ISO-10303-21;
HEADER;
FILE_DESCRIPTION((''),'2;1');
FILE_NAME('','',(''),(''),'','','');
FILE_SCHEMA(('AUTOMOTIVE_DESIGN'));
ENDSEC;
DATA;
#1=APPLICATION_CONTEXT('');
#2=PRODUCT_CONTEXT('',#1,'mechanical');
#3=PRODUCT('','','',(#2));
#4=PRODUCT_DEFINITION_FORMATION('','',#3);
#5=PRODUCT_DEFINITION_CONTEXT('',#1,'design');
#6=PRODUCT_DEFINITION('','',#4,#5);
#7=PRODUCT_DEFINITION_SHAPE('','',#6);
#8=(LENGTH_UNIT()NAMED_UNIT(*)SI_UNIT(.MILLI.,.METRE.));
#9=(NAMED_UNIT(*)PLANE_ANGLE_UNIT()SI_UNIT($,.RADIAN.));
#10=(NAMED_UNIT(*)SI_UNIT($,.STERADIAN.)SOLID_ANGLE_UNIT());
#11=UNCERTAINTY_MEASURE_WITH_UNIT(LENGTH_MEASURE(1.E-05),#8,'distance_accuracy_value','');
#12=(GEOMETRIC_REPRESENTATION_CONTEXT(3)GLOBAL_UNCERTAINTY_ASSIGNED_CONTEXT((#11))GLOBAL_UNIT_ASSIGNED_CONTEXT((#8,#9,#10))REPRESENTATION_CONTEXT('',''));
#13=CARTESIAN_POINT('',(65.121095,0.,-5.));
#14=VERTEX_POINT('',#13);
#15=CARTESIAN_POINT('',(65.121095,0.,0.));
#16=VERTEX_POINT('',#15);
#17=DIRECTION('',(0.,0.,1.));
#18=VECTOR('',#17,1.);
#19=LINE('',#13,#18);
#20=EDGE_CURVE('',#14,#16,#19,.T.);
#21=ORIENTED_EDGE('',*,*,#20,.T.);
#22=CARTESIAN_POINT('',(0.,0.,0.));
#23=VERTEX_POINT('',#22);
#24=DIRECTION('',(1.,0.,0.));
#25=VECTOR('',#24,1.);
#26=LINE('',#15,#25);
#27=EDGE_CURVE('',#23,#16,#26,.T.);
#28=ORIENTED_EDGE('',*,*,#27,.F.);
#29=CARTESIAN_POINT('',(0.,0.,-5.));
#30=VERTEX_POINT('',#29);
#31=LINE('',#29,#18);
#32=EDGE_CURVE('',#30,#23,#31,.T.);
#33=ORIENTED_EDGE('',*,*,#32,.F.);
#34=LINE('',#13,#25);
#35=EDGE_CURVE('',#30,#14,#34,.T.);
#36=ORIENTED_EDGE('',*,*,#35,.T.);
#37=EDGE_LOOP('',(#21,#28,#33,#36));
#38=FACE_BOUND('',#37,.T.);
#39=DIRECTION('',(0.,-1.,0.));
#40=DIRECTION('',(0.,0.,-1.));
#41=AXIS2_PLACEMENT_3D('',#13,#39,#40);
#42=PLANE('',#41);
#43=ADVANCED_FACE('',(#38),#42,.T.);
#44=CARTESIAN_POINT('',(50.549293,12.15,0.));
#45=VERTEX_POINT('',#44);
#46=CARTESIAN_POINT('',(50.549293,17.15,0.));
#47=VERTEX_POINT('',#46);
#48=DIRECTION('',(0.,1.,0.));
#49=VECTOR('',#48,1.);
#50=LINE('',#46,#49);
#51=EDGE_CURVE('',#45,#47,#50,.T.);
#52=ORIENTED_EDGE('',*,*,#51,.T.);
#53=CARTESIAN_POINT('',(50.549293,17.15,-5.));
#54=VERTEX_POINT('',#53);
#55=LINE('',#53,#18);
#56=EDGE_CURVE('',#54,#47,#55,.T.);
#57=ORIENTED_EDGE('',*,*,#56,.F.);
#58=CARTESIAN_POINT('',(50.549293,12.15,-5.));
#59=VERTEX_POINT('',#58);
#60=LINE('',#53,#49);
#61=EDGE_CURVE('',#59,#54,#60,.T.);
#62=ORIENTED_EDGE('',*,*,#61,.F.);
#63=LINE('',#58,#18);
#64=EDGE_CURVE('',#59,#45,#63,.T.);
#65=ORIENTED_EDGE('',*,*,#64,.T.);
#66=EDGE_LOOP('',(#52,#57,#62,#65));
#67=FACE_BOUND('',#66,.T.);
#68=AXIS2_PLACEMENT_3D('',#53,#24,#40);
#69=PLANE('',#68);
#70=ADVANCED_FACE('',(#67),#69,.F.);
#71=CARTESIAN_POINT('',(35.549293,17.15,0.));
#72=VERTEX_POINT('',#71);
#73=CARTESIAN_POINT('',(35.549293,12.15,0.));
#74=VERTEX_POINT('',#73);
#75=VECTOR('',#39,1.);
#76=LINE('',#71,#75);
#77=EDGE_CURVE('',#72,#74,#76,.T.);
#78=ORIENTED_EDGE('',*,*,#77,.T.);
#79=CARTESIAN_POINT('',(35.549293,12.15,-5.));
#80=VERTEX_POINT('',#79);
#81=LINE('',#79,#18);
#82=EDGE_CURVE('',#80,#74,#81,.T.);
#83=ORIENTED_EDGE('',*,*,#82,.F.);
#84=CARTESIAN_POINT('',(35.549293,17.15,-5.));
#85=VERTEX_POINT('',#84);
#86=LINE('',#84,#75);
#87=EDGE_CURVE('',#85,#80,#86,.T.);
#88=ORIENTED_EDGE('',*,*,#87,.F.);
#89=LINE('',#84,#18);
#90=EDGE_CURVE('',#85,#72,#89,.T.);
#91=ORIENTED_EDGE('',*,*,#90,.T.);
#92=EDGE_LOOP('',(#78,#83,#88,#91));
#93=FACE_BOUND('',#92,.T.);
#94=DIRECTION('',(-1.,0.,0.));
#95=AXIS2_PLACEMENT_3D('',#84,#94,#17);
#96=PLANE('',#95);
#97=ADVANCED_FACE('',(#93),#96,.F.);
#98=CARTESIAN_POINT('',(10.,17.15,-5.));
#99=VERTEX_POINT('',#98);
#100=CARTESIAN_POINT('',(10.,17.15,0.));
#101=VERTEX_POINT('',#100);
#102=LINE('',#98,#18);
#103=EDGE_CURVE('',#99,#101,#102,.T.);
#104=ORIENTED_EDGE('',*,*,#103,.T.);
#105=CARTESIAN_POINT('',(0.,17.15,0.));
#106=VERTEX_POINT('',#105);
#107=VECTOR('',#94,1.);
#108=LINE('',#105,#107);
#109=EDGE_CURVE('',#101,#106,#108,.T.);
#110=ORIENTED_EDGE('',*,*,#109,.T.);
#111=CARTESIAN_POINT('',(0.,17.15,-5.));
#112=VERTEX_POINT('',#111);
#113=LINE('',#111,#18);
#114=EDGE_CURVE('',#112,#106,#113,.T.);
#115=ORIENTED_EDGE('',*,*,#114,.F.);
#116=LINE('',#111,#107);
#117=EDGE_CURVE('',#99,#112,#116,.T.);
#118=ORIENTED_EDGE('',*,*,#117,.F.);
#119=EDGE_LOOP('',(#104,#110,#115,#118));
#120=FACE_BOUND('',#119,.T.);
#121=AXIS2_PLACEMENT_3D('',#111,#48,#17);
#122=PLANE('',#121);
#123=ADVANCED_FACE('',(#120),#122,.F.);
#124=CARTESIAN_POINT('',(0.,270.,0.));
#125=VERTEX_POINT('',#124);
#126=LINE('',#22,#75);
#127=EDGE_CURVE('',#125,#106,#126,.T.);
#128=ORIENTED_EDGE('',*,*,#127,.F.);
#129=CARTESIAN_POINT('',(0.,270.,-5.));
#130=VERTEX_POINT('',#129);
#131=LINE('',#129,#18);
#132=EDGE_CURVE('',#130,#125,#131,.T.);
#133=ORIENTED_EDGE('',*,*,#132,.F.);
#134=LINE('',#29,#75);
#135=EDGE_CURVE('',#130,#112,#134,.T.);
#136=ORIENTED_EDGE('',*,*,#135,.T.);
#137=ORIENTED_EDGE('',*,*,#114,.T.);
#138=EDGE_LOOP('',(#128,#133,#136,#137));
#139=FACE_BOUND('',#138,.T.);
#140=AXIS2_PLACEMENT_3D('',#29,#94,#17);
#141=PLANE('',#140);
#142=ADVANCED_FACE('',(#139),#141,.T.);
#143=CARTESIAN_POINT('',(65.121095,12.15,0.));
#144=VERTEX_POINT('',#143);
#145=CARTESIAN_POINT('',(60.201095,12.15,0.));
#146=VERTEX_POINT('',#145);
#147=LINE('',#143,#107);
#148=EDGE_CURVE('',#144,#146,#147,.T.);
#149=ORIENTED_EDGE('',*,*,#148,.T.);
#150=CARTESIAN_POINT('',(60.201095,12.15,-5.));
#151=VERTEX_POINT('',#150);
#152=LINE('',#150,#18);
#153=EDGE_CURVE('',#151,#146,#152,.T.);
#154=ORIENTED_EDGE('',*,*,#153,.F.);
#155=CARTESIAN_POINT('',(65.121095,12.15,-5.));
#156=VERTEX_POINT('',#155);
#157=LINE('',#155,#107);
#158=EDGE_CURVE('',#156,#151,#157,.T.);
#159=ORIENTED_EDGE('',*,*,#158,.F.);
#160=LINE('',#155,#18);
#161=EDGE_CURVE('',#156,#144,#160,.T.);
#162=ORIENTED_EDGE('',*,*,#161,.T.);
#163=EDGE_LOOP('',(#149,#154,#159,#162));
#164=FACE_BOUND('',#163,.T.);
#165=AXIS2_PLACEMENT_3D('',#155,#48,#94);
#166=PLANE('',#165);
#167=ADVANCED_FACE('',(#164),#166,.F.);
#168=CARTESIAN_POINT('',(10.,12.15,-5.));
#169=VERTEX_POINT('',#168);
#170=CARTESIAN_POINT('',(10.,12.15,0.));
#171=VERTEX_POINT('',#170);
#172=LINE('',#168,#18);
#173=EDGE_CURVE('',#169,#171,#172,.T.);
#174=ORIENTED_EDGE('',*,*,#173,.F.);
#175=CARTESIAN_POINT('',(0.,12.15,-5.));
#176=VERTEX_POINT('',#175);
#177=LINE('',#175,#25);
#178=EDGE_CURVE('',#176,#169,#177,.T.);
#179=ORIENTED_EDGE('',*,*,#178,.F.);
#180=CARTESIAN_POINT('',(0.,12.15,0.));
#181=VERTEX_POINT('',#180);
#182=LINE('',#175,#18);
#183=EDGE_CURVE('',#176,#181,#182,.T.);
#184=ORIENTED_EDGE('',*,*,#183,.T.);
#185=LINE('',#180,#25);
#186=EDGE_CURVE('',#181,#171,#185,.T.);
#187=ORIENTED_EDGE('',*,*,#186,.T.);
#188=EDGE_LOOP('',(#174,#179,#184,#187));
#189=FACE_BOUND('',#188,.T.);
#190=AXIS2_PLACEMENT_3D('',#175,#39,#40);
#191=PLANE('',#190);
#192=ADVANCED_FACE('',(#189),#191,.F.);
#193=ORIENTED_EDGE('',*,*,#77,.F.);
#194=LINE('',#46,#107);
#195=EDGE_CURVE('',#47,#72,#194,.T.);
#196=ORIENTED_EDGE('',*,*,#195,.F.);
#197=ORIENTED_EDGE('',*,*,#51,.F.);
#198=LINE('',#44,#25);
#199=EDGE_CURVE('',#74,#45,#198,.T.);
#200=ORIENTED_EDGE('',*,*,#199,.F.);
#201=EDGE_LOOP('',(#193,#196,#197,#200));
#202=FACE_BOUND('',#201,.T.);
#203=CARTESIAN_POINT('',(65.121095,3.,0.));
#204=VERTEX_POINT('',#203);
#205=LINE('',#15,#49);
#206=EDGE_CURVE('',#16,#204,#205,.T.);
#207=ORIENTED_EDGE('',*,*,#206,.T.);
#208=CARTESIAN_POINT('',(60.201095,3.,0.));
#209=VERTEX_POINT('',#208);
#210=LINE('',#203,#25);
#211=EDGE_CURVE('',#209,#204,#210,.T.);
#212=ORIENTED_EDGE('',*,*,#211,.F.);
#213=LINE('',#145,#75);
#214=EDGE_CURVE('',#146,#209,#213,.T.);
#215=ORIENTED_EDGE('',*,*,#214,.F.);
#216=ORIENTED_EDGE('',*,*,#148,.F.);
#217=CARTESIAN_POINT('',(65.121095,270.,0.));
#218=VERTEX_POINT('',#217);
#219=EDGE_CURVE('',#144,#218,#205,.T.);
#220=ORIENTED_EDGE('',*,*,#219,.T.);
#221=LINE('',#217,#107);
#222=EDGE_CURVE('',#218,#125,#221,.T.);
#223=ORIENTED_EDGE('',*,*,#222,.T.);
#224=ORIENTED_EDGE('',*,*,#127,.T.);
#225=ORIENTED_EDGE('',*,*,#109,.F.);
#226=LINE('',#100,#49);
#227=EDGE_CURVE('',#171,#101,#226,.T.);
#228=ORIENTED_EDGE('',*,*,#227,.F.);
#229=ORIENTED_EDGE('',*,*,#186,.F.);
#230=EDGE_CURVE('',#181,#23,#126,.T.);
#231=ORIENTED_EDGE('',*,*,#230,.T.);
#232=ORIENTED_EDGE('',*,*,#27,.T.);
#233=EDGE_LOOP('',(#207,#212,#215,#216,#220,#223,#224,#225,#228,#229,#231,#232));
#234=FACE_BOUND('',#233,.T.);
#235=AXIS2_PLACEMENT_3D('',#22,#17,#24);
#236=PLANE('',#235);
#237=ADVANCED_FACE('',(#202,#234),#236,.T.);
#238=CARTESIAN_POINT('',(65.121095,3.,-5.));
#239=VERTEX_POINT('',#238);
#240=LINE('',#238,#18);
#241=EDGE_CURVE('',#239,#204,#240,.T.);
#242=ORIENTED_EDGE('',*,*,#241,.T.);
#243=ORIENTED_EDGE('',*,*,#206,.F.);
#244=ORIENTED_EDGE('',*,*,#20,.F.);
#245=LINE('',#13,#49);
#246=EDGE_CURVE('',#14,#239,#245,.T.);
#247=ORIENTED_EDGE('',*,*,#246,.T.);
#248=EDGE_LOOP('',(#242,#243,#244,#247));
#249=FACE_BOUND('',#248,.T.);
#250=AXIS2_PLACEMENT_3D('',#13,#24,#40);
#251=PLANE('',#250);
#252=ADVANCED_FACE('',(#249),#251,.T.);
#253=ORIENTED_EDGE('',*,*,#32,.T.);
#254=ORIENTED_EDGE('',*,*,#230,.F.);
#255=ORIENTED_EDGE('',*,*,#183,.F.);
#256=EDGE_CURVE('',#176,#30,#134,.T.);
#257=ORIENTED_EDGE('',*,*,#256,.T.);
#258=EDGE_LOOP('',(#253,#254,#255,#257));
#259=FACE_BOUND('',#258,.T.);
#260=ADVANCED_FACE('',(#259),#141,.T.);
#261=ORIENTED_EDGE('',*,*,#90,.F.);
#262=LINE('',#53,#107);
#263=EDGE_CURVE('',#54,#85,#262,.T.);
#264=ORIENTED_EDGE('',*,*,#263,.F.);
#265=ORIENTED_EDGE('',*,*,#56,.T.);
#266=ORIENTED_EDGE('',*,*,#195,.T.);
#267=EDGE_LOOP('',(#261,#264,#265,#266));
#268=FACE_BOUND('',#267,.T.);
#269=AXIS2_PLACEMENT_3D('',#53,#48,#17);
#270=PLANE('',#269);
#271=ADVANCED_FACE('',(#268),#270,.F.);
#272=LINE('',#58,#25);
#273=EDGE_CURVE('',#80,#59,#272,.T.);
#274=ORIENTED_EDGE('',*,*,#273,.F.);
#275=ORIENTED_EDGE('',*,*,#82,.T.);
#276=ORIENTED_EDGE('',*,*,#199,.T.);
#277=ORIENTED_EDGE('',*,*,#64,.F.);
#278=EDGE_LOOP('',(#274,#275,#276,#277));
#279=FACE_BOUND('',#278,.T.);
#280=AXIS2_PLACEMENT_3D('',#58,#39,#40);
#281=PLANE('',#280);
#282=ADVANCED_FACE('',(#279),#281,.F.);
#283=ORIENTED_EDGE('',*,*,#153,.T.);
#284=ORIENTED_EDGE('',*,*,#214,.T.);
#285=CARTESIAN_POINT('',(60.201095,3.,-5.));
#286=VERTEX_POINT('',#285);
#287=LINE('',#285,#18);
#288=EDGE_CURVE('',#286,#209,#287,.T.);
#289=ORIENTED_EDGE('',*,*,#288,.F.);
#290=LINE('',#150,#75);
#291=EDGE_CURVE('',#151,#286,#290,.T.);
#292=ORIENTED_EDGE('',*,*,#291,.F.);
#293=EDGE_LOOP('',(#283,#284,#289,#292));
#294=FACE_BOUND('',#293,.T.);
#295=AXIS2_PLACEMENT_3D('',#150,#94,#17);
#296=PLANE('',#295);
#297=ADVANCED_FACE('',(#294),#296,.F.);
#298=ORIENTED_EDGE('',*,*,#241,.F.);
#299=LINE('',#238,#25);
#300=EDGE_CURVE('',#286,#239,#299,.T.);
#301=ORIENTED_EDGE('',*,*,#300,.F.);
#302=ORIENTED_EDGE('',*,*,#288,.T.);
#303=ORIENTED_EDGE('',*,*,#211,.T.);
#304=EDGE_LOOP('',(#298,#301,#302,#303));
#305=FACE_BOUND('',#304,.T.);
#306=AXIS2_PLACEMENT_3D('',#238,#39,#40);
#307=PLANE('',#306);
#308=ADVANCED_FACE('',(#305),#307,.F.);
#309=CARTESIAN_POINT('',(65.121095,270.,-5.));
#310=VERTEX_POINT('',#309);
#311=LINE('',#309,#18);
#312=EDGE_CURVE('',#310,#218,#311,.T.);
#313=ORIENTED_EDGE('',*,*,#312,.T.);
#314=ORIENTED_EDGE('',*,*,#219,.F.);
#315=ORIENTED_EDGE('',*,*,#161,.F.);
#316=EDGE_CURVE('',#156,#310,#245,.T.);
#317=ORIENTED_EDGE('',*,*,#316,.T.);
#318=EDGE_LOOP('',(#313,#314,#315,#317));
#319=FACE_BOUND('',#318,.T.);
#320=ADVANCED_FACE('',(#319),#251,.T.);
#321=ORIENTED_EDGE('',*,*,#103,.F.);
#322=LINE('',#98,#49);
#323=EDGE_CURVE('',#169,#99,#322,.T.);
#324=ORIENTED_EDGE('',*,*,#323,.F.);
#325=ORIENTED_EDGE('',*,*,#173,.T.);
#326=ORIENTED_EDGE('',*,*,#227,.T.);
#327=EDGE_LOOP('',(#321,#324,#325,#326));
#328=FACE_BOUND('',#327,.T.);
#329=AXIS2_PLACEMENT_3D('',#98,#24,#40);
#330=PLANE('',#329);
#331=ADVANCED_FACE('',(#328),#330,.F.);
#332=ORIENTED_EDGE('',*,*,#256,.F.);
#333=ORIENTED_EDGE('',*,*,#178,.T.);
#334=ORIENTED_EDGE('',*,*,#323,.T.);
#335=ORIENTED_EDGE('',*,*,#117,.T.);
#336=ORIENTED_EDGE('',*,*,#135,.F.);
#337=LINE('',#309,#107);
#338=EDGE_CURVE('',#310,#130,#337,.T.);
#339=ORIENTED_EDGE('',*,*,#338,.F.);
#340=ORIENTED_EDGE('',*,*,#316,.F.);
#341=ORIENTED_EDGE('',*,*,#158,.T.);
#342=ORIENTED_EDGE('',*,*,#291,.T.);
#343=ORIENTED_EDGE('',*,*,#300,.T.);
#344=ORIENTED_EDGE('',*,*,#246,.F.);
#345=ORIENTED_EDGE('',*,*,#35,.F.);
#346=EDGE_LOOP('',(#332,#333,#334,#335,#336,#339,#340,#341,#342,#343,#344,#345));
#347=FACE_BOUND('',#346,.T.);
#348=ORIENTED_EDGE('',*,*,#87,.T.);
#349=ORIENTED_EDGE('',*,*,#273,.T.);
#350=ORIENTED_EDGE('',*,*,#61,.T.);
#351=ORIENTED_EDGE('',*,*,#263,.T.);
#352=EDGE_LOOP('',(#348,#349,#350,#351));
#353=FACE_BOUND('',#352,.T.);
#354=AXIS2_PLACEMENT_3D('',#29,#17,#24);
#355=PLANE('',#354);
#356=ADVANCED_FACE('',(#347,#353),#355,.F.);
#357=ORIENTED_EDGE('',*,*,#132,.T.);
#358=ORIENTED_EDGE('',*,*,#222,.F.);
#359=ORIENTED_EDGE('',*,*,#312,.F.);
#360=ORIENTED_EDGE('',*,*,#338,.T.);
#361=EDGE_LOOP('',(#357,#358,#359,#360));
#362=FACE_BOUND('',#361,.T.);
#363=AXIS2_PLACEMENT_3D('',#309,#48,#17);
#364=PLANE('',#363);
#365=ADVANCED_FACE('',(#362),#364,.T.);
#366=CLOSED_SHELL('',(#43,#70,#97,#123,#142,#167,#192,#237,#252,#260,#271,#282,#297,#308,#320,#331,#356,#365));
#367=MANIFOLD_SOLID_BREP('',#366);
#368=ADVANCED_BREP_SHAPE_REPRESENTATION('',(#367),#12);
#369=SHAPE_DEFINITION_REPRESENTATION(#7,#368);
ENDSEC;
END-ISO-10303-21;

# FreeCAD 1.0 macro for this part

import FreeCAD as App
import Part
import Sketcher

V = App.Vector


def add_polygon(sketch, points):
    """Adds a closed chain of lines whose ends are joined by coincident constraints."""
    first, n = sketch.GeometryCount, len(points)
    for a, b in zip(points, points[1:] + points[:1]):
        sketch.addGeometry(Part.LineSegment(App.Vector(*a, 0), App.Vector(*b, 0)), False)
    for i in range(n):
        sketch.addConstraint(Sketcher.Constraint("Coincident", first + i, 2, first + (i + 1) % n, 1))

doc = App.newDocument("Part")
params = doc.addObject("Spreadsheet::Sheet", "Params")
for row, (alias, value) in enumerate([
    ("sketch1_height", "270 mm"),
    ("pad1_length", "5 mm"),
    ("sketch2_width", "10 mm"),
    ("sketch2_width2", "15 mm"),
    ("sketch2_height", "5 mm"),
    ("sketch2_width3", "4.92 mm"),
    ("sketch2_height2", "9.15 mm"),
    ("pocket1_length", "5 mm"),
], start=1):
    params.set(f"A{row}", alias)
    params.set(f"B{row}", "=" + value)
    params.setAlias(f"B{row}", alias)

body = doc.addObject("PartDesign::Body", "Body")

sketch1 = body.newObject("Sketcher::SketchObject", "Sketch")
sketch1.AttachmentSupport = (doc.getObject("XY_Plane"), [""])
sketch1.MapMode = "FlatFace"
add_polygon(sketch1, [(0, 270), (0, 0), (65.121095, 0), (65.121095, 270)])
sketch1.addConstraint(Sketcher.Constraint("Vertical", 0))
sketch1.addConstraint(Sketcher.Constraint("Horizontal", 1))
sketch1.addConstraint(Sketcher.Constraint("Vertical", 2))
sketch1.addConstraint(Sketcher.Constraint("Horizontal", 3))
sketch1.addConstraint(Sketcher.Constraint("Coincident", 0, 2, -1, 1))
sketch1.addConstraint(Sketcher.Constraint("DistanceY", 0, 2, 0, 1, 270.0))
sketch1.addConstraint(Sketcher.Constraint("DistanceX", 1, 1, 1, 2, 65.121095))
sketch1.setExpression("Constraints[9]", "Params.sketch1_height")
pad1 = body.newObject("PartDesign::Pad", "Pad")
pad1.Profile = sketch1
pad1.setExpression("Length", "Params.pad1_length")
pad1.Reversed = True

sketch2 = body.newObject("Sketcher::SketchObject", "Sketch001")
sketch2.AttachmentSupport = (doc.getObject("XY_Plane"), [""])
sketch2.MapMode = "FlatFace"
add_polygon(sketch2, [(0, 17.15), (0, 12.15), (10, 12.15), (10, 17.15)])
add_polygon(sketch2, [(35.549293, 17.15), (35.549293, 12.15), (50.549293, 12.15), (50.549293, 17.15)])
add_polygon(sketch2, [(60.201095, 12.15), (60.201095, 3), (65.121095, 3), (65.121095, 12.15)])
sketch2.addConstraint(Sketcher.Constraint("Vertical", 0))
sketch2.addConstraint(Sketcher.Constraint("Horizontal", 1))
sketch2.addConstraint(Sketcher.Constraint("Vertical", 2))
sketch2.addConstraint(Sketcher.Constraint("Horizontal", 3))
sketch2.addConstraint(Sketcher.Constraint("Vertical", 4))
sketch2.addConstraint(Sketcher.Constraint("Horizontal", 5))
sketch2.addConstraint(Sketcher.Constraint("Vertical", 6))
sketch2.addConstraint(Sketcher.Constraint("Horizontal", 7))
sketch2.addConstraint(Sketcher.Constraint("Vertical", 8))
sketch2.addConstraint(Sketcher.Constraint("Horizontal", 9))
sketch2.addConstraint(Sketcher.Constraint("Vertical", 10))
sketch2.addConstraint(Sketcher.Constraint("Horizontal", 11))
sketch2.addConstraint(Sketcher.Constraint("PointOnObject", 0, 2, -2))
sketch2.addConstraint(Sketcher.Constraint("Horizontal", 1, 2, 4, 2))
sketch2.addConstraint(Sketcher.Constraint("Horizontal", 3, 2, 6, 2))
sketch2.addConstraint(Sketcher.Constraint("Horizontal", 5, 2, 10, 2))
sketch2.addConstraint(Sketcher.Constraint("DistanceX", 1, 1, 1, 2, 10.0))
sketch2.addConstraint(Sketcher.Constraint("DistanceX", 5, 1, 5, 2, 15.0))
sketch2.addConstraint(Sketcher.Constraint("DistanceY", 0, 2, 0, 1, 5.0))
sketch2.addConstraint(Sketcher.Constraint("DistanceY", -1, 1, 8, 2, 3.0))
sketch2.addConstraint(Sketcher.Constraint("DistanceX", 9, 1, 9, 2, 4.92))
sketch2.addConstraint(Sketcher.Constraint("DistanceY", 8, 2, 8, 1, 9.15))
sketch2.addConstraint(Sketcher.Constraint("DistanceX", -1, 1, 4, 2, 35.549293))
sketch2.addConstraint(Sketcher.Constraint("DistanceX", -1, 1, 8, 2, 60.201095))
sketch2.setExpression("Constraints[28]", "Params.sketch2_width")
sketch2.setExpression("Constraints[29]", "Params.sketch2_width2")
sketch2.setExpression("Constraints[30]", "Params.sketch2_height")
sketch2.setExpression("Constraints[32]", "Params.sketch2_width3")
sketch2.setExpression("Constraints[33]", "Params.sketch2_height2")
pocket1 = body.newObject("PartDesign::Pocket", "Pocket")
pocket1.Profile = sketch2
pocket1.setExpression("Length", "Params.pocket1_length")

doc.recompute()
